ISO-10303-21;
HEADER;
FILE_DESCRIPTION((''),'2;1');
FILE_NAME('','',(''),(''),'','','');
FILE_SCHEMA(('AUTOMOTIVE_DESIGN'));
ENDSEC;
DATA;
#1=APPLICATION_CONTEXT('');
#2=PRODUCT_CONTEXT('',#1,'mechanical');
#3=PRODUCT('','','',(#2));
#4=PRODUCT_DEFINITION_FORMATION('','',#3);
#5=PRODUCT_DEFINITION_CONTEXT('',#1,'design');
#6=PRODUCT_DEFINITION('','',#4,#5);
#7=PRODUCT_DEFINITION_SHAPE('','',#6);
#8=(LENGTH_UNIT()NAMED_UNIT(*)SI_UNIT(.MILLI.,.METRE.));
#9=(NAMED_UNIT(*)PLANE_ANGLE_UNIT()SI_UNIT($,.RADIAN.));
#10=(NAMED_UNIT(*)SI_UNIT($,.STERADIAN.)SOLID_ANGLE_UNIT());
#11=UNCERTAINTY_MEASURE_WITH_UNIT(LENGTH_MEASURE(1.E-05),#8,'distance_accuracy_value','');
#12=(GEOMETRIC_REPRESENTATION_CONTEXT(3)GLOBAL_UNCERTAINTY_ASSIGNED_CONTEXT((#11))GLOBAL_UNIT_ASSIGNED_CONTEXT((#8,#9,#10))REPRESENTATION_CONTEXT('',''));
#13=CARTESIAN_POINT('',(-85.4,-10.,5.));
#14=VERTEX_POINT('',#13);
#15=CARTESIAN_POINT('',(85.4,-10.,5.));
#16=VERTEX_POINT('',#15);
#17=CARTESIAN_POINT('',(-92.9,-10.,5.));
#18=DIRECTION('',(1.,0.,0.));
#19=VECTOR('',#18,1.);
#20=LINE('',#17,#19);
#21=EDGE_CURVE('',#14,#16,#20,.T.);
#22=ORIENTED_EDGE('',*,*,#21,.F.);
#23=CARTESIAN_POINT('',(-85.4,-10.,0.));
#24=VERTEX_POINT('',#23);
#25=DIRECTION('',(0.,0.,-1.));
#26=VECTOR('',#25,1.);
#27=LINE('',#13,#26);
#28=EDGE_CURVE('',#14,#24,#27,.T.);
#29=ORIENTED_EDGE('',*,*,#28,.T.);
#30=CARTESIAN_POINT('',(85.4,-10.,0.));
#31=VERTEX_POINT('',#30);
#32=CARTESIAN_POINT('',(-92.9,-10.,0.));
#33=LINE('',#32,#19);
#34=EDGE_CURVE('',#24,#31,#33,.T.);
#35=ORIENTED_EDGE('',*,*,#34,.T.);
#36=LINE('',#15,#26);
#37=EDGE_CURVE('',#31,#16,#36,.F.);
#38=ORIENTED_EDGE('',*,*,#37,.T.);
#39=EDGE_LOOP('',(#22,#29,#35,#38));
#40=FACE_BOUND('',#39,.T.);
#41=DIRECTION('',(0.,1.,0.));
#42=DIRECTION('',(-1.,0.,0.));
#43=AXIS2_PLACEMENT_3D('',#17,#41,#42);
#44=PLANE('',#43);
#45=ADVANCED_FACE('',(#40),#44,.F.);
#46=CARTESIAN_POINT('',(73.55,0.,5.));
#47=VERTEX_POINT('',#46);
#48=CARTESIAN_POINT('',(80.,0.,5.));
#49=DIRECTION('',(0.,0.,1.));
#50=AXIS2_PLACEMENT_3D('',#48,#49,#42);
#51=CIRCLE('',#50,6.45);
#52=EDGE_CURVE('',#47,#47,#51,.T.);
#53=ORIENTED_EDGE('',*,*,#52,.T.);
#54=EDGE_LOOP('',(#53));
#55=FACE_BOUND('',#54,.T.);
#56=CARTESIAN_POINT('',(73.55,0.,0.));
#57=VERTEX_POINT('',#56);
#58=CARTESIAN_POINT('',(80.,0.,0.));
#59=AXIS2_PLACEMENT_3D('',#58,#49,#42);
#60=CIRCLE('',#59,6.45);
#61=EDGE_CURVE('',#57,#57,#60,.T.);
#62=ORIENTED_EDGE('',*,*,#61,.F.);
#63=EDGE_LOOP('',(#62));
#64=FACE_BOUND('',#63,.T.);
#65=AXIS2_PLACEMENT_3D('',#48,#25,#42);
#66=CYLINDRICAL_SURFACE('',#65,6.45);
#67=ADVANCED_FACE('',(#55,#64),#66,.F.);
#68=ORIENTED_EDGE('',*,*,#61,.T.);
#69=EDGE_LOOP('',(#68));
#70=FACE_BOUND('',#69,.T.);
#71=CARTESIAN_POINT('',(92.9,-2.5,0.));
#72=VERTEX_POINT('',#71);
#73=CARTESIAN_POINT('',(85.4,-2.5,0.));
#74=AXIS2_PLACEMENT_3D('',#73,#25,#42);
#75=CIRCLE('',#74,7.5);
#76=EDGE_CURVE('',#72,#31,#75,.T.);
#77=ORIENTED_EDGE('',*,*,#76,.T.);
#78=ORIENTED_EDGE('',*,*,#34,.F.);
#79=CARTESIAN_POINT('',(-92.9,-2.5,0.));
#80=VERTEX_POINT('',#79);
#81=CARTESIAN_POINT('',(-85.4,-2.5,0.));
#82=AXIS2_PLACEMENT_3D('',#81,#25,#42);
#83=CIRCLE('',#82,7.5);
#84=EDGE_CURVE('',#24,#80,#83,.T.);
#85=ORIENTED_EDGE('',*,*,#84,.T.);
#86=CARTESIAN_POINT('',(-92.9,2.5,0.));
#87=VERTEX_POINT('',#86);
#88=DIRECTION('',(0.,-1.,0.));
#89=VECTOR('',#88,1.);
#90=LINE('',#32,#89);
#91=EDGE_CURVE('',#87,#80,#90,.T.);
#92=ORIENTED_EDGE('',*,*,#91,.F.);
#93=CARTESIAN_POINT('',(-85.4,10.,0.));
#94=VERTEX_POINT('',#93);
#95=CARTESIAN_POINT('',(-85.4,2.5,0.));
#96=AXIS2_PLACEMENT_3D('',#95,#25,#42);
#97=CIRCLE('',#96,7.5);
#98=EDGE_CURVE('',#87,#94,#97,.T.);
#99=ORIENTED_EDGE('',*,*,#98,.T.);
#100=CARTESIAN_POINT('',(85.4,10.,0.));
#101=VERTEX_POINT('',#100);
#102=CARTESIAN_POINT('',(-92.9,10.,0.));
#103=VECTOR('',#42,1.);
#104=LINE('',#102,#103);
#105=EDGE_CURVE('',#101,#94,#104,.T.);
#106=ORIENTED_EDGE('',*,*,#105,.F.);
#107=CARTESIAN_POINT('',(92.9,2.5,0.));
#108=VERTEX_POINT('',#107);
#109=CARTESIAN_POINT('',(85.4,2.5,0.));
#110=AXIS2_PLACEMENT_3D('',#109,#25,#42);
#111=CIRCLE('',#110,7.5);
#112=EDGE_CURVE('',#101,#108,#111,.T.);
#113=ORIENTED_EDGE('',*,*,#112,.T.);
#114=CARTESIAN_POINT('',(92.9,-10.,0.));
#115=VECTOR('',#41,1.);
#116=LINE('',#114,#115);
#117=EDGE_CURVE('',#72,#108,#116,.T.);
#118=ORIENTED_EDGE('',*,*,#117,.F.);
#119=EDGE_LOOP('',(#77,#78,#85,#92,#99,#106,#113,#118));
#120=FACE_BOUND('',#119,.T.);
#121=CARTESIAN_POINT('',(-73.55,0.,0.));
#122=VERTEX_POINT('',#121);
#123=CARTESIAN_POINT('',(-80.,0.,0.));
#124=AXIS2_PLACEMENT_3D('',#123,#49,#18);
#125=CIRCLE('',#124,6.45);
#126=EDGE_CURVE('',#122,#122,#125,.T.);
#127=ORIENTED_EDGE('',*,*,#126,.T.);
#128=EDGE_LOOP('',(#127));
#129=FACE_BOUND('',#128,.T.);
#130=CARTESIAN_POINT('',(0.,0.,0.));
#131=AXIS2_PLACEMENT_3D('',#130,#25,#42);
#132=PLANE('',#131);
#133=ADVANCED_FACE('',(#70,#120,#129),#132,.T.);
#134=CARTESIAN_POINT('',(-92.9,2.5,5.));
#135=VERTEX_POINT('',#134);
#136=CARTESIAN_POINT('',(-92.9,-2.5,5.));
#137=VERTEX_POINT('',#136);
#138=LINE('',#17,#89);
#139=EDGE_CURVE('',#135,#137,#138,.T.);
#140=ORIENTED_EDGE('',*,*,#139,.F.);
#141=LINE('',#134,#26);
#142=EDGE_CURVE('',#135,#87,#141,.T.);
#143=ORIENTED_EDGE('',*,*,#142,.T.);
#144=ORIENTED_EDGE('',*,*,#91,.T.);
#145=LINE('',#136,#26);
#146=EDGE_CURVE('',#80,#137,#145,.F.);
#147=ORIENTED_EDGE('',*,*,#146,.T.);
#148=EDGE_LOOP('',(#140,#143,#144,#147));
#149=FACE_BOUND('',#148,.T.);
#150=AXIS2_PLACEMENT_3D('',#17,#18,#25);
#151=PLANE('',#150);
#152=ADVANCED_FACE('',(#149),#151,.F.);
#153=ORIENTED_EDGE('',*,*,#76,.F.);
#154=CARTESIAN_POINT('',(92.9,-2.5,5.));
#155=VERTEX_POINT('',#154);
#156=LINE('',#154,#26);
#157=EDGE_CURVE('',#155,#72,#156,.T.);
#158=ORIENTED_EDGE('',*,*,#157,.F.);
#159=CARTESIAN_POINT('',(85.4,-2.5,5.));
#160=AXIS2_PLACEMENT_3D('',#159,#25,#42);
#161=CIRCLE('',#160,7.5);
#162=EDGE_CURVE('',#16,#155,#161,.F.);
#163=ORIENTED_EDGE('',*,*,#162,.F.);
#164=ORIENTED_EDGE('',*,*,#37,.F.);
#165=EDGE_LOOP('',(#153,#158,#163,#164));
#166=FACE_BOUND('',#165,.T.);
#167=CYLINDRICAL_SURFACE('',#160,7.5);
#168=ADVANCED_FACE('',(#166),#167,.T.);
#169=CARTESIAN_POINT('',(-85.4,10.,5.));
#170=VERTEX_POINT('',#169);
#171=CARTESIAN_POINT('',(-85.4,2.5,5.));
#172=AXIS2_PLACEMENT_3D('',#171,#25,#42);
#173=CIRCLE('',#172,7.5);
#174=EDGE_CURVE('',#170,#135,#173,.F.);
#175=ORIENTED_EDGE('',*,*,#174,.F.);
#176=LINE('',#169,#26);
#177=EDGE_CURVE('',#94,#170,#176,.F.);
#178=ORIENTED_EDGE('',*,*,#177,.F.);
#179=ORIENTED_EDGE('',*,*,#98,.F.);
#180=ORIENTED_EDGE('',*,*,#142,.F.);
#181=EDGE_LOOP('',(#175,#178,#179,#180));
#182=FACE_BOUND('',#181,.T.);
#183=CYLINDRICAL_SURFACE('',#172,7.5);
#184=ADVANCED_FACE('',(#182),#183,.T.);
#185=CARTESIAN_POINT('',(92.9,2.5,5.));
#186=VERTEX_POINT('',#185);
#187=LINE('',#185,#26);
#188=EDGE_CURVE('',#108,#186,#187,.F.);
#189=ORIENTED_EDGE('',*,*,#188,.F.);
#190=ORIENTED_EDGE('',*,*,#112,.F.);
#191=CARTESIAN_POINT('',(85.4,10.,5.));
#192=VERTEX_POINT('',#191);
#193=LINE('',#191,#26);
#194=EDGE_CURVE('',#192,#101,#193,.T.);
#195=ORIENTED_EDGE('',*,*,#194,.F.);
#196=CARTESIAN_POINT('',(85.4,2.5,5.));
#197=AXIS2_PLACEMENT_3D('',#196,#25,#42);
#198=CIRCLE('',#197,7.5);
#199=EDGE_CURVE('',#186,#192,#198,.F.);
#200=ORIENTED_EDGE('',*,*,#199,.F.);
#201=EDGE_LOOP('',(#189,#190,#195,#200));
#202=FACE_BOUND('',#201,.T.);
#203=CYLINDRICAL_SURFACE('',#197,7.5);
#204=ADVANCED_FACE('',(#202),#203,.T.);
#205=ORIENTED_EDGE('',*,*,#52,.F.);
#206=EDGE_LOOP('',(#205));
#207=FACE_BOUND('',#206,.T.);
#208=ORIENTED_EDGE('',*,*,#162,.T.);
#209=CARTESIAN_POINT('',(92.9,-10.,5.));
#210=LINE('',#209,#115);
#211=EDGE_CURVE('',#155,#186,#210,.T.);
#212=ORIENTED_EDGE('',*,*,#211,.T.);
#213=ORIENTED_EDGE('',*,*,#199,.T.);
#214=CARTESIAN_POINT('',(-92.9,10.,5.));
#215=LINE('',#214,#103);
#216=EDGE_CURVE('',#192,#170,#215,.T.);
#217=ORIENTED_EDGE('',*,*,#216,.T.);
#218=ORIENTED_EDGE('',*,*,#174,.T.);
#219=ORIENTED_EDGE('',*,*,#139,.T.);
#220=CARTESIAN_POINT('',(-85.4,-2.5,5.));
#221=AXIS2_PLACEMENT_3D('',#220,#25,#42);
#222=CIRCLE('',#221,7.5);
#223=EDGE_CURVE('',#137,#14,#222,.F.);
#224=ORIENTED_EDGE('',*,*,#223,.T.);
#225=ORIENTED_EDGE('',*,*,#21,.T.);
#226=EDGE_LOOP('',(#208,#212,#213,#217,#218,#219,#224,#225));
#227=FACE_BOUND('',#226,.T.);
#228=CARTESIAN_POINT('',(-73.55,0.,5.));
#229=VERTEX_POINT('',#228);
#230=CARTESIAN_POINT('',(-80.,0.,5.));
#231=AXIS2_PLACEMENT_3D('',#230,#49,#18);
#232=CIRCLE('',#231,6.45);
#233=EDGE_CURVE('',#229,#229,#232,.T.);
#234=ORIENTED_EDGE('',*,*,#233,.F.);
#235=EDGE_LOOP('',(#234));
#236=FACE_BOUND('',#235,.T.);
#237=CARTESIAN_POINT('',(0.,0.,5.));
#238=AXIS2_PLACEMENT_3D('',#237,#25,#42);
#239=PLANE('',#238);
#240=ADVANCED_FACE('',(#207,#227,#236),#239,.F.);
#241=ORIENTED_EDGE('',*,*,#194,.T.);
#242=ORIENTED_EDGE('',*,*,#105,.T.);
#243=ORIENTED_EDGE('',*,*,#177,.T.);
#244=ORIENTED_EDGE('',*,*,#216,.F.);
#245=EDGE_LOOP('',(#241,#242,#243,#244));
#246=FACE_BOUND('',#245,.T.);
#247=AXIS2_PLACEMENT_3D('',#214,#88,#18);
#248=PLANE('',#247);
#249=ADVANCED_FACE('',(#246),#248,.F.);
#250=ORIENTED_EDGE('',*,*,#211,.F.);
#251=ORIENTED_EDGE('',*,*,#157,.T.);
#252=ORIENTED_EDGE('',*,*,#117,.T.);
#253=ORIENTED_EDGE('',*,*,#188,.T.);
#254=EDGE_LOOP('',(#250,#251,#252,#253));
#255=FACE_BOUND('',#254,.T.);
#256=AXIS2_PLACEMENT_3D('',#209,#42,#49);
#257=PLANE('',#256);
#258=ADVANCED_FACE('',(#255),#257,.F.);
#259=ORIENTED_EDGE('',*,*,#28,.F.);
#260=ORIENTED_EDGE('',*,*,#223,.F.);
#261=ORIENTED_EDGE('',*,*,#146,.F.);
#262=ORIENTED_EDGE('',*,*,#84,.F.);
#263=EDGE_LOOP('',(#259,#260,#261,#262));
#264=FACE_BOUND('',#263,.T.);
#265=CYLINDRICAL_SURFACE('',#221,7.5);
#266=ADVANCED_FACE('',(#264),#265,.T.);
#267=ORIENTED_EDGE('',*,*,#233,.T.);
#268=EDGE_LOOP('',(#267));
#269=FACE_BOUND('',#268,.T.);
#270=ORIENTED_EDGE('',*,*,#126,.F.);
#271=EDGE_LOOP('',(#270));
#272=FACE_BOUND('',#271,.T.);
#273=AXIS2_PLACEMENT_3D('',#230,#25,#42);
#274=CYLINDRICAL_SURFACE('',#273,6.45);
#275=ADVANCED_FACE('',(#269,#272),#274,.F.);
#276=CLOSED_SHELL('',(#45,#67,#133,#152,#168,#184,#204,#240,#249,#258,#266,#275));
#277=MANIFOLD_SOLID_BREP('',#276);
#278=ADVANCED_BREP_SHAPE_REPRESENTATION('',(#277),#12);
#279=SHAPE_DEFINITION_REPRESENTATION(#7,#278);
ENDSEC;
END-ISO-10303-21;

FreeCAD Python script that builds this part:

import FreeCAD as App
import Part
import Sketcher

V = App.Vector


def edges_at(feature, points):
    """Names of the edges that pass closest to the given points."""
    edges = feature.Shape.Edges
    near = lambda p: min(range(len(edges)), key=lambda i: edges[i].distToShape(Part.Vertex(*p))[0])
    return sorted({f"Edge{near(p) + 1}" for p in points})

doc = App.newDocument("Part")
body = doc.addObject("PartDesign::Body", "Body")

# Sketch on XY plane
sketch1 = body.newObject("Sketcher::SketchObject", "Sketch")
sketch1.AttachmentSupport = (doc.getObject("XY_Plane"), [""])
sketch1.MapMode = "FlatFace"
sketch1.addGeometry(Part.LineSegment(V(-93, 10, 0), V(-93, -10, 0)), False)
sketch1.addGeometry(Part.LineSegment(V(-93, -10, 0), V(93, -10, 0)), False)
sketch1.addGeometry(Part.LineSegment(V(93, -10, 0), V(93, 10, 0)), False)
sketch1.addGeometry(Part.LineSegment(V(93, 10, 0), V(-93, 10, 0)), False)
sketch1.addGeometry(Part.Circle(V(-80, 0, 0), V(0, 0, 1), 6), False)
sketch1.addGeometry(Part.Circle(V(80, 0, 0), V(0, 0, 1), 6), False)
sketch1.addConstraint(Sketcher.Constraint("Coincident", 0, 2, 1, 1))
sketch1.addConstraint(Sketcher.Constraint("Coincident", 1, 2, 2, 1))
sketch1.addConstraint(Sketcher.Constraint("Coincident", 2, 2, 3, 1))
sketch1.addConstraint(Sketcher.Constraint("Coincident", 3, 2, 0, 1))
sketch1.addConstraint(Sketcher.Constraint("Vertical", 0))
sketch1.addConstraint(Sketcher.Constraint("Horizontal", 1))
sketch1.addConstraint(Sketcher.Constraint("Vertical", 2))
sketch1.addConstraint(Sketcher.Constraint("Horizontal", 3))
sketch1.addConstraint(Sketcher.Constraint("Equal", 4, 5))
sketch1.addConstraint(Sketcher.Constraint("Symmetric", 4, 3, 5, 3, -1, 1))
sketch1.addConstraint(Sketcher.Constraint("Symmetric", 0, 2, 2, 2, -1, 1))
sketch1.addConstraint(Sketcher.Constraint("PointOnObject", 4, 3, -1))
sketch1.addConstraint(Sketcher.Constraint("Diameter", 4, 12.9))
sketch1.addConstraint(Sketcher.Constraint("DistanceY", 0, 2, 0, 1, 20.0))
sketch1.addConstraint(Sketcher.Constraint("DistanceX", 1, 1, 1, 2, 185.8))
sketch1.addConstraint(Sketcher.Constraint("DistanceX", 4, 3, -1, 1, 80.0))
pad1 = body.newObject("PartDesign::Pad", "Pad")
pad1.Profile = sketch1
pad1.Length = 5
doc.recompute()

fillet = body.newObject("PartDesign::Fillet", "Fillet")
fillet.Base = (pad1, edges_at(pad1, [
    (-92.9, 10, 2.5),
    (92.9, 10, 2.5),
    (92.9, -10, 2.5),
    (-92.9, -10, 2.5),
]))
fillet.Radius = 7.5

doc.recompute()
